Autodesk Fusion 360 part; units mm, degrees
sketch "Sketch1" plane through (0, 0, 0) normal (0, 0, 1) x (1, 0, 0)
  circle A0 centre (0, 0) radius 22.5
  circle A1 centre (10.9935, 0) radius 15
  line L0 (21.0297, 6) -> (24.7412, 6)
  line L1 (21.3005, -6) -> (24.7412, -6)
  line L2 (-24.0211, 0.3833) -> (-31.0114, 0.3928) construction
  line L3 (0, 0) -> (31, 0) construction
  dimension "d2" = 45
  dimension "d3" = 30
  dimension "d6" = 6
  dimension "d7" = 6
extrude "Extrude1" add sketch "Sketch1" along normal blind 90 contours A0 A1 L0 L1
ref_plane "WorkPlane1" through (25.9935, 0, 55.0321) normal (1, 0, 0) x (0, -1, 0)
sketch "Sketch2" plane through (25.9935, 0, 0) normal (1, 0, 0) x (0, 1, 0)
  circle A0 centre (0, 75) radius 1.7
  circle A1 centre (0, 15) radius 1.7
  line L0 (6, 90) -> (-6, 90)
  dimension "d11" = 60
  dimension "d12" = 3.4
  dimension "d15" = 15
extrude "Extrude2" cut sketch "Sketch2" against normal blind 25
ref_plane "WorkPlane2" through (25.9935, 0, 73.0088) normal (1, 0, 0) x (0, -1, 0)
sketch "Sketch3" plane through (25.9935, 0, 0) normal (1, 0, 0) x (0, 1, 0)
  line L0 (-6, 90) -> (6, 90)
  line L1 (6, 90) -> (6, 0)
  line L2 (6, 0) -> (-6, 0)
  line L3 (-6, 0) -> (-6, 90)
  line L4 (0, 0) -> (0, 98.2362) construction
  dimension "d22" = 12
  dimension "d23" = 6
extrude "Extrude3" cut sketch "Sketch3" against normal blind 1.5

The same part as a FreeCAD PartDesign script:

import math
import FreeCAD as App
import Part
import Sketcher

V = App.Vector
Q = App.Units.Quantity

doc = App.newDocument("Part")
body = doc.addObject("PartDesign::Body", "Body")

# Sketch on XY plane
sketch1 = body.newObject("Sketcher::SketchObject", "Sketch")
sketch1.AttachmentSupport = (doc.getObject("XY_Plane"), [""])
sketch1.MapMode = "FlatFace"
sketch1.addGeometry([
    Part.ArcOfCircle(Part.Circle(V(0, 0, 0), V(0, 0, 1), 22.5), math.radians(-15), math.radians(15)),
    Part.LineSegment(V(21.7, -6, 0), V(24.7, -6, 0)),
    Part.ArcOfCircle(Part.Circle(V(11, 0, 0), V(0, 0, 1), 15), math.radians(-24), math.radians(24)),
    Part.LineSegment(V(24.7, 6, 0), V(21.7, 6, 0)),
], False)
sketch1.addConstraint([
    Sketcher.Constraint("Coincident", 0, 1, 1, 1),
    Sketcher.Constraint("Coincident", 1, 2, 2, 1),
    Sketcher.Constraint("Coincident", 2, 2, 3, 1),
    Sketcher.Constraint("Coincident", 3, 2, 0, 2),
    Sketcher.Constraint("Horizontal", 1),
    Sketcher.Constraint("Horizontal", 3),
    Sketcher.Constraint("Coincident", 0, 3, -1, 1),
    Sketcher.Constraint("Symmetric", 1, 2, 2, 2, -1),
    Sketcher.Constraint("Radius", 2, Q("15 mm")),
    Sketcher.Constraint("Radius", 0, Q("22.5 mm")),
    Sketcher.Constraint("DistanceY", 0, 1, -1, 1, Q("6 mm")),
    Sketcher.Constraint("DistanceX", 1, 1, 1, 2, Q("3.056 mm")),
])
pad1 = body.newObject("PartDesign::Pad", "Pad")
pad1.Profile = sketch1
pad1.Length = 90

# Sketch on YZ plane
sketch2 = body.newObject("Sketcher::SketchObject", "Sketch001")
sketch2.AttachmentSupport = (doc.getObject("YZ_Plane"), [""])
sketch2.MapMode = "FlatFace"
sketch2.AttachmentOffset = App.Placement(V(0, 0, 25.9935), App.Rotation())
sketch2.addGeometry([
    Part.Circle(V(0, 75, 0), V(0, 0, 1), 1.7),
    Part.Circle(V(0, 15, 0), V(0, 0, 1), 1.7),
], False)
sketch2.addConstraint([
    Sketcher.Constraint("Equal", 0, 1),
    Sketcher.Constraint("PointOnObject", 0, 3, -2),
    Sketcher.Constraint("PointOnObject", 1, 3, -2),
    Sketcher.Constraint("Diameter", 0, Q("3.4 mm")),
    Sketcher.Constraint("DistanceY", -1, 1, 1, 3, Q("15 mm")),
    Sketcher.Constraint("DistanceY", 1, 3, 0, 3, Q("60 mm")),
])
pocket1 = body.newObject("PartDesign::Pocket", "Pocket")
pocket1.Profile = sketch2
pocket1.Length = 25

# Sketch on YZ plane
sketch3 = body.newObject("Sketcher::SketchObject", "Sketch002")
sketch3.AttachmentSupport = (doc.getObject("YZ_Plane"), [""])
sketch3.MapMode = "FlatFace"
sketch3.AttachmentOffset = App.Placement(V(0, 0, 25.9935), App.Rotation())
sketch3.addGeometry([
    Part.LineSegment(V(6, 90, 0), V(-6, 90, 0)),
    Part.LineSegment(V(-6, 90, 0), V(-6, 0, 0)),
    Part.LineSegment(V(-6, 0, 0), V(6, 0, 0)),
    Part.LineSegment(V(6, 0, 0), V(6, 90, 0)),
], False)
sketch3.addConstraint([
    Sketcher.Constraint("Coincident", 0, 2, 1, 1),
    Sketcher.Constraint("Coincident", 1, 2, 2, 1),
    Sketcher.Constraint("Coincident", 2, 2, 3, 1),
    Sketcher.Constraint("Coincident", 3, 2, 0, 1),
    Sketcher.Constraint("Horizontal", 0),
    Sketcher.Constraint("Vertical", 1),
    Sketcher.Constraint("Horizontal", 2),
    Sketcher.Constraint("Vertical", 3),
    Sketcher.Constraint("Symmetric", 1, 2, 2, 2, -1, 1),
    Sketcher.Constraint("DistanceX", 0, 2, 0, 1, Q("12 mm")),
    Sketcher.Constraint("DistanceY", 1, 2, 1, 1, Q("90 mm")),
])
pocket2 = body.newObject("PartDesign::Pocket", "Pocket001")
pocket2.Profile = sketch3
pocket2.Length = 1.5

doc.recompute()
